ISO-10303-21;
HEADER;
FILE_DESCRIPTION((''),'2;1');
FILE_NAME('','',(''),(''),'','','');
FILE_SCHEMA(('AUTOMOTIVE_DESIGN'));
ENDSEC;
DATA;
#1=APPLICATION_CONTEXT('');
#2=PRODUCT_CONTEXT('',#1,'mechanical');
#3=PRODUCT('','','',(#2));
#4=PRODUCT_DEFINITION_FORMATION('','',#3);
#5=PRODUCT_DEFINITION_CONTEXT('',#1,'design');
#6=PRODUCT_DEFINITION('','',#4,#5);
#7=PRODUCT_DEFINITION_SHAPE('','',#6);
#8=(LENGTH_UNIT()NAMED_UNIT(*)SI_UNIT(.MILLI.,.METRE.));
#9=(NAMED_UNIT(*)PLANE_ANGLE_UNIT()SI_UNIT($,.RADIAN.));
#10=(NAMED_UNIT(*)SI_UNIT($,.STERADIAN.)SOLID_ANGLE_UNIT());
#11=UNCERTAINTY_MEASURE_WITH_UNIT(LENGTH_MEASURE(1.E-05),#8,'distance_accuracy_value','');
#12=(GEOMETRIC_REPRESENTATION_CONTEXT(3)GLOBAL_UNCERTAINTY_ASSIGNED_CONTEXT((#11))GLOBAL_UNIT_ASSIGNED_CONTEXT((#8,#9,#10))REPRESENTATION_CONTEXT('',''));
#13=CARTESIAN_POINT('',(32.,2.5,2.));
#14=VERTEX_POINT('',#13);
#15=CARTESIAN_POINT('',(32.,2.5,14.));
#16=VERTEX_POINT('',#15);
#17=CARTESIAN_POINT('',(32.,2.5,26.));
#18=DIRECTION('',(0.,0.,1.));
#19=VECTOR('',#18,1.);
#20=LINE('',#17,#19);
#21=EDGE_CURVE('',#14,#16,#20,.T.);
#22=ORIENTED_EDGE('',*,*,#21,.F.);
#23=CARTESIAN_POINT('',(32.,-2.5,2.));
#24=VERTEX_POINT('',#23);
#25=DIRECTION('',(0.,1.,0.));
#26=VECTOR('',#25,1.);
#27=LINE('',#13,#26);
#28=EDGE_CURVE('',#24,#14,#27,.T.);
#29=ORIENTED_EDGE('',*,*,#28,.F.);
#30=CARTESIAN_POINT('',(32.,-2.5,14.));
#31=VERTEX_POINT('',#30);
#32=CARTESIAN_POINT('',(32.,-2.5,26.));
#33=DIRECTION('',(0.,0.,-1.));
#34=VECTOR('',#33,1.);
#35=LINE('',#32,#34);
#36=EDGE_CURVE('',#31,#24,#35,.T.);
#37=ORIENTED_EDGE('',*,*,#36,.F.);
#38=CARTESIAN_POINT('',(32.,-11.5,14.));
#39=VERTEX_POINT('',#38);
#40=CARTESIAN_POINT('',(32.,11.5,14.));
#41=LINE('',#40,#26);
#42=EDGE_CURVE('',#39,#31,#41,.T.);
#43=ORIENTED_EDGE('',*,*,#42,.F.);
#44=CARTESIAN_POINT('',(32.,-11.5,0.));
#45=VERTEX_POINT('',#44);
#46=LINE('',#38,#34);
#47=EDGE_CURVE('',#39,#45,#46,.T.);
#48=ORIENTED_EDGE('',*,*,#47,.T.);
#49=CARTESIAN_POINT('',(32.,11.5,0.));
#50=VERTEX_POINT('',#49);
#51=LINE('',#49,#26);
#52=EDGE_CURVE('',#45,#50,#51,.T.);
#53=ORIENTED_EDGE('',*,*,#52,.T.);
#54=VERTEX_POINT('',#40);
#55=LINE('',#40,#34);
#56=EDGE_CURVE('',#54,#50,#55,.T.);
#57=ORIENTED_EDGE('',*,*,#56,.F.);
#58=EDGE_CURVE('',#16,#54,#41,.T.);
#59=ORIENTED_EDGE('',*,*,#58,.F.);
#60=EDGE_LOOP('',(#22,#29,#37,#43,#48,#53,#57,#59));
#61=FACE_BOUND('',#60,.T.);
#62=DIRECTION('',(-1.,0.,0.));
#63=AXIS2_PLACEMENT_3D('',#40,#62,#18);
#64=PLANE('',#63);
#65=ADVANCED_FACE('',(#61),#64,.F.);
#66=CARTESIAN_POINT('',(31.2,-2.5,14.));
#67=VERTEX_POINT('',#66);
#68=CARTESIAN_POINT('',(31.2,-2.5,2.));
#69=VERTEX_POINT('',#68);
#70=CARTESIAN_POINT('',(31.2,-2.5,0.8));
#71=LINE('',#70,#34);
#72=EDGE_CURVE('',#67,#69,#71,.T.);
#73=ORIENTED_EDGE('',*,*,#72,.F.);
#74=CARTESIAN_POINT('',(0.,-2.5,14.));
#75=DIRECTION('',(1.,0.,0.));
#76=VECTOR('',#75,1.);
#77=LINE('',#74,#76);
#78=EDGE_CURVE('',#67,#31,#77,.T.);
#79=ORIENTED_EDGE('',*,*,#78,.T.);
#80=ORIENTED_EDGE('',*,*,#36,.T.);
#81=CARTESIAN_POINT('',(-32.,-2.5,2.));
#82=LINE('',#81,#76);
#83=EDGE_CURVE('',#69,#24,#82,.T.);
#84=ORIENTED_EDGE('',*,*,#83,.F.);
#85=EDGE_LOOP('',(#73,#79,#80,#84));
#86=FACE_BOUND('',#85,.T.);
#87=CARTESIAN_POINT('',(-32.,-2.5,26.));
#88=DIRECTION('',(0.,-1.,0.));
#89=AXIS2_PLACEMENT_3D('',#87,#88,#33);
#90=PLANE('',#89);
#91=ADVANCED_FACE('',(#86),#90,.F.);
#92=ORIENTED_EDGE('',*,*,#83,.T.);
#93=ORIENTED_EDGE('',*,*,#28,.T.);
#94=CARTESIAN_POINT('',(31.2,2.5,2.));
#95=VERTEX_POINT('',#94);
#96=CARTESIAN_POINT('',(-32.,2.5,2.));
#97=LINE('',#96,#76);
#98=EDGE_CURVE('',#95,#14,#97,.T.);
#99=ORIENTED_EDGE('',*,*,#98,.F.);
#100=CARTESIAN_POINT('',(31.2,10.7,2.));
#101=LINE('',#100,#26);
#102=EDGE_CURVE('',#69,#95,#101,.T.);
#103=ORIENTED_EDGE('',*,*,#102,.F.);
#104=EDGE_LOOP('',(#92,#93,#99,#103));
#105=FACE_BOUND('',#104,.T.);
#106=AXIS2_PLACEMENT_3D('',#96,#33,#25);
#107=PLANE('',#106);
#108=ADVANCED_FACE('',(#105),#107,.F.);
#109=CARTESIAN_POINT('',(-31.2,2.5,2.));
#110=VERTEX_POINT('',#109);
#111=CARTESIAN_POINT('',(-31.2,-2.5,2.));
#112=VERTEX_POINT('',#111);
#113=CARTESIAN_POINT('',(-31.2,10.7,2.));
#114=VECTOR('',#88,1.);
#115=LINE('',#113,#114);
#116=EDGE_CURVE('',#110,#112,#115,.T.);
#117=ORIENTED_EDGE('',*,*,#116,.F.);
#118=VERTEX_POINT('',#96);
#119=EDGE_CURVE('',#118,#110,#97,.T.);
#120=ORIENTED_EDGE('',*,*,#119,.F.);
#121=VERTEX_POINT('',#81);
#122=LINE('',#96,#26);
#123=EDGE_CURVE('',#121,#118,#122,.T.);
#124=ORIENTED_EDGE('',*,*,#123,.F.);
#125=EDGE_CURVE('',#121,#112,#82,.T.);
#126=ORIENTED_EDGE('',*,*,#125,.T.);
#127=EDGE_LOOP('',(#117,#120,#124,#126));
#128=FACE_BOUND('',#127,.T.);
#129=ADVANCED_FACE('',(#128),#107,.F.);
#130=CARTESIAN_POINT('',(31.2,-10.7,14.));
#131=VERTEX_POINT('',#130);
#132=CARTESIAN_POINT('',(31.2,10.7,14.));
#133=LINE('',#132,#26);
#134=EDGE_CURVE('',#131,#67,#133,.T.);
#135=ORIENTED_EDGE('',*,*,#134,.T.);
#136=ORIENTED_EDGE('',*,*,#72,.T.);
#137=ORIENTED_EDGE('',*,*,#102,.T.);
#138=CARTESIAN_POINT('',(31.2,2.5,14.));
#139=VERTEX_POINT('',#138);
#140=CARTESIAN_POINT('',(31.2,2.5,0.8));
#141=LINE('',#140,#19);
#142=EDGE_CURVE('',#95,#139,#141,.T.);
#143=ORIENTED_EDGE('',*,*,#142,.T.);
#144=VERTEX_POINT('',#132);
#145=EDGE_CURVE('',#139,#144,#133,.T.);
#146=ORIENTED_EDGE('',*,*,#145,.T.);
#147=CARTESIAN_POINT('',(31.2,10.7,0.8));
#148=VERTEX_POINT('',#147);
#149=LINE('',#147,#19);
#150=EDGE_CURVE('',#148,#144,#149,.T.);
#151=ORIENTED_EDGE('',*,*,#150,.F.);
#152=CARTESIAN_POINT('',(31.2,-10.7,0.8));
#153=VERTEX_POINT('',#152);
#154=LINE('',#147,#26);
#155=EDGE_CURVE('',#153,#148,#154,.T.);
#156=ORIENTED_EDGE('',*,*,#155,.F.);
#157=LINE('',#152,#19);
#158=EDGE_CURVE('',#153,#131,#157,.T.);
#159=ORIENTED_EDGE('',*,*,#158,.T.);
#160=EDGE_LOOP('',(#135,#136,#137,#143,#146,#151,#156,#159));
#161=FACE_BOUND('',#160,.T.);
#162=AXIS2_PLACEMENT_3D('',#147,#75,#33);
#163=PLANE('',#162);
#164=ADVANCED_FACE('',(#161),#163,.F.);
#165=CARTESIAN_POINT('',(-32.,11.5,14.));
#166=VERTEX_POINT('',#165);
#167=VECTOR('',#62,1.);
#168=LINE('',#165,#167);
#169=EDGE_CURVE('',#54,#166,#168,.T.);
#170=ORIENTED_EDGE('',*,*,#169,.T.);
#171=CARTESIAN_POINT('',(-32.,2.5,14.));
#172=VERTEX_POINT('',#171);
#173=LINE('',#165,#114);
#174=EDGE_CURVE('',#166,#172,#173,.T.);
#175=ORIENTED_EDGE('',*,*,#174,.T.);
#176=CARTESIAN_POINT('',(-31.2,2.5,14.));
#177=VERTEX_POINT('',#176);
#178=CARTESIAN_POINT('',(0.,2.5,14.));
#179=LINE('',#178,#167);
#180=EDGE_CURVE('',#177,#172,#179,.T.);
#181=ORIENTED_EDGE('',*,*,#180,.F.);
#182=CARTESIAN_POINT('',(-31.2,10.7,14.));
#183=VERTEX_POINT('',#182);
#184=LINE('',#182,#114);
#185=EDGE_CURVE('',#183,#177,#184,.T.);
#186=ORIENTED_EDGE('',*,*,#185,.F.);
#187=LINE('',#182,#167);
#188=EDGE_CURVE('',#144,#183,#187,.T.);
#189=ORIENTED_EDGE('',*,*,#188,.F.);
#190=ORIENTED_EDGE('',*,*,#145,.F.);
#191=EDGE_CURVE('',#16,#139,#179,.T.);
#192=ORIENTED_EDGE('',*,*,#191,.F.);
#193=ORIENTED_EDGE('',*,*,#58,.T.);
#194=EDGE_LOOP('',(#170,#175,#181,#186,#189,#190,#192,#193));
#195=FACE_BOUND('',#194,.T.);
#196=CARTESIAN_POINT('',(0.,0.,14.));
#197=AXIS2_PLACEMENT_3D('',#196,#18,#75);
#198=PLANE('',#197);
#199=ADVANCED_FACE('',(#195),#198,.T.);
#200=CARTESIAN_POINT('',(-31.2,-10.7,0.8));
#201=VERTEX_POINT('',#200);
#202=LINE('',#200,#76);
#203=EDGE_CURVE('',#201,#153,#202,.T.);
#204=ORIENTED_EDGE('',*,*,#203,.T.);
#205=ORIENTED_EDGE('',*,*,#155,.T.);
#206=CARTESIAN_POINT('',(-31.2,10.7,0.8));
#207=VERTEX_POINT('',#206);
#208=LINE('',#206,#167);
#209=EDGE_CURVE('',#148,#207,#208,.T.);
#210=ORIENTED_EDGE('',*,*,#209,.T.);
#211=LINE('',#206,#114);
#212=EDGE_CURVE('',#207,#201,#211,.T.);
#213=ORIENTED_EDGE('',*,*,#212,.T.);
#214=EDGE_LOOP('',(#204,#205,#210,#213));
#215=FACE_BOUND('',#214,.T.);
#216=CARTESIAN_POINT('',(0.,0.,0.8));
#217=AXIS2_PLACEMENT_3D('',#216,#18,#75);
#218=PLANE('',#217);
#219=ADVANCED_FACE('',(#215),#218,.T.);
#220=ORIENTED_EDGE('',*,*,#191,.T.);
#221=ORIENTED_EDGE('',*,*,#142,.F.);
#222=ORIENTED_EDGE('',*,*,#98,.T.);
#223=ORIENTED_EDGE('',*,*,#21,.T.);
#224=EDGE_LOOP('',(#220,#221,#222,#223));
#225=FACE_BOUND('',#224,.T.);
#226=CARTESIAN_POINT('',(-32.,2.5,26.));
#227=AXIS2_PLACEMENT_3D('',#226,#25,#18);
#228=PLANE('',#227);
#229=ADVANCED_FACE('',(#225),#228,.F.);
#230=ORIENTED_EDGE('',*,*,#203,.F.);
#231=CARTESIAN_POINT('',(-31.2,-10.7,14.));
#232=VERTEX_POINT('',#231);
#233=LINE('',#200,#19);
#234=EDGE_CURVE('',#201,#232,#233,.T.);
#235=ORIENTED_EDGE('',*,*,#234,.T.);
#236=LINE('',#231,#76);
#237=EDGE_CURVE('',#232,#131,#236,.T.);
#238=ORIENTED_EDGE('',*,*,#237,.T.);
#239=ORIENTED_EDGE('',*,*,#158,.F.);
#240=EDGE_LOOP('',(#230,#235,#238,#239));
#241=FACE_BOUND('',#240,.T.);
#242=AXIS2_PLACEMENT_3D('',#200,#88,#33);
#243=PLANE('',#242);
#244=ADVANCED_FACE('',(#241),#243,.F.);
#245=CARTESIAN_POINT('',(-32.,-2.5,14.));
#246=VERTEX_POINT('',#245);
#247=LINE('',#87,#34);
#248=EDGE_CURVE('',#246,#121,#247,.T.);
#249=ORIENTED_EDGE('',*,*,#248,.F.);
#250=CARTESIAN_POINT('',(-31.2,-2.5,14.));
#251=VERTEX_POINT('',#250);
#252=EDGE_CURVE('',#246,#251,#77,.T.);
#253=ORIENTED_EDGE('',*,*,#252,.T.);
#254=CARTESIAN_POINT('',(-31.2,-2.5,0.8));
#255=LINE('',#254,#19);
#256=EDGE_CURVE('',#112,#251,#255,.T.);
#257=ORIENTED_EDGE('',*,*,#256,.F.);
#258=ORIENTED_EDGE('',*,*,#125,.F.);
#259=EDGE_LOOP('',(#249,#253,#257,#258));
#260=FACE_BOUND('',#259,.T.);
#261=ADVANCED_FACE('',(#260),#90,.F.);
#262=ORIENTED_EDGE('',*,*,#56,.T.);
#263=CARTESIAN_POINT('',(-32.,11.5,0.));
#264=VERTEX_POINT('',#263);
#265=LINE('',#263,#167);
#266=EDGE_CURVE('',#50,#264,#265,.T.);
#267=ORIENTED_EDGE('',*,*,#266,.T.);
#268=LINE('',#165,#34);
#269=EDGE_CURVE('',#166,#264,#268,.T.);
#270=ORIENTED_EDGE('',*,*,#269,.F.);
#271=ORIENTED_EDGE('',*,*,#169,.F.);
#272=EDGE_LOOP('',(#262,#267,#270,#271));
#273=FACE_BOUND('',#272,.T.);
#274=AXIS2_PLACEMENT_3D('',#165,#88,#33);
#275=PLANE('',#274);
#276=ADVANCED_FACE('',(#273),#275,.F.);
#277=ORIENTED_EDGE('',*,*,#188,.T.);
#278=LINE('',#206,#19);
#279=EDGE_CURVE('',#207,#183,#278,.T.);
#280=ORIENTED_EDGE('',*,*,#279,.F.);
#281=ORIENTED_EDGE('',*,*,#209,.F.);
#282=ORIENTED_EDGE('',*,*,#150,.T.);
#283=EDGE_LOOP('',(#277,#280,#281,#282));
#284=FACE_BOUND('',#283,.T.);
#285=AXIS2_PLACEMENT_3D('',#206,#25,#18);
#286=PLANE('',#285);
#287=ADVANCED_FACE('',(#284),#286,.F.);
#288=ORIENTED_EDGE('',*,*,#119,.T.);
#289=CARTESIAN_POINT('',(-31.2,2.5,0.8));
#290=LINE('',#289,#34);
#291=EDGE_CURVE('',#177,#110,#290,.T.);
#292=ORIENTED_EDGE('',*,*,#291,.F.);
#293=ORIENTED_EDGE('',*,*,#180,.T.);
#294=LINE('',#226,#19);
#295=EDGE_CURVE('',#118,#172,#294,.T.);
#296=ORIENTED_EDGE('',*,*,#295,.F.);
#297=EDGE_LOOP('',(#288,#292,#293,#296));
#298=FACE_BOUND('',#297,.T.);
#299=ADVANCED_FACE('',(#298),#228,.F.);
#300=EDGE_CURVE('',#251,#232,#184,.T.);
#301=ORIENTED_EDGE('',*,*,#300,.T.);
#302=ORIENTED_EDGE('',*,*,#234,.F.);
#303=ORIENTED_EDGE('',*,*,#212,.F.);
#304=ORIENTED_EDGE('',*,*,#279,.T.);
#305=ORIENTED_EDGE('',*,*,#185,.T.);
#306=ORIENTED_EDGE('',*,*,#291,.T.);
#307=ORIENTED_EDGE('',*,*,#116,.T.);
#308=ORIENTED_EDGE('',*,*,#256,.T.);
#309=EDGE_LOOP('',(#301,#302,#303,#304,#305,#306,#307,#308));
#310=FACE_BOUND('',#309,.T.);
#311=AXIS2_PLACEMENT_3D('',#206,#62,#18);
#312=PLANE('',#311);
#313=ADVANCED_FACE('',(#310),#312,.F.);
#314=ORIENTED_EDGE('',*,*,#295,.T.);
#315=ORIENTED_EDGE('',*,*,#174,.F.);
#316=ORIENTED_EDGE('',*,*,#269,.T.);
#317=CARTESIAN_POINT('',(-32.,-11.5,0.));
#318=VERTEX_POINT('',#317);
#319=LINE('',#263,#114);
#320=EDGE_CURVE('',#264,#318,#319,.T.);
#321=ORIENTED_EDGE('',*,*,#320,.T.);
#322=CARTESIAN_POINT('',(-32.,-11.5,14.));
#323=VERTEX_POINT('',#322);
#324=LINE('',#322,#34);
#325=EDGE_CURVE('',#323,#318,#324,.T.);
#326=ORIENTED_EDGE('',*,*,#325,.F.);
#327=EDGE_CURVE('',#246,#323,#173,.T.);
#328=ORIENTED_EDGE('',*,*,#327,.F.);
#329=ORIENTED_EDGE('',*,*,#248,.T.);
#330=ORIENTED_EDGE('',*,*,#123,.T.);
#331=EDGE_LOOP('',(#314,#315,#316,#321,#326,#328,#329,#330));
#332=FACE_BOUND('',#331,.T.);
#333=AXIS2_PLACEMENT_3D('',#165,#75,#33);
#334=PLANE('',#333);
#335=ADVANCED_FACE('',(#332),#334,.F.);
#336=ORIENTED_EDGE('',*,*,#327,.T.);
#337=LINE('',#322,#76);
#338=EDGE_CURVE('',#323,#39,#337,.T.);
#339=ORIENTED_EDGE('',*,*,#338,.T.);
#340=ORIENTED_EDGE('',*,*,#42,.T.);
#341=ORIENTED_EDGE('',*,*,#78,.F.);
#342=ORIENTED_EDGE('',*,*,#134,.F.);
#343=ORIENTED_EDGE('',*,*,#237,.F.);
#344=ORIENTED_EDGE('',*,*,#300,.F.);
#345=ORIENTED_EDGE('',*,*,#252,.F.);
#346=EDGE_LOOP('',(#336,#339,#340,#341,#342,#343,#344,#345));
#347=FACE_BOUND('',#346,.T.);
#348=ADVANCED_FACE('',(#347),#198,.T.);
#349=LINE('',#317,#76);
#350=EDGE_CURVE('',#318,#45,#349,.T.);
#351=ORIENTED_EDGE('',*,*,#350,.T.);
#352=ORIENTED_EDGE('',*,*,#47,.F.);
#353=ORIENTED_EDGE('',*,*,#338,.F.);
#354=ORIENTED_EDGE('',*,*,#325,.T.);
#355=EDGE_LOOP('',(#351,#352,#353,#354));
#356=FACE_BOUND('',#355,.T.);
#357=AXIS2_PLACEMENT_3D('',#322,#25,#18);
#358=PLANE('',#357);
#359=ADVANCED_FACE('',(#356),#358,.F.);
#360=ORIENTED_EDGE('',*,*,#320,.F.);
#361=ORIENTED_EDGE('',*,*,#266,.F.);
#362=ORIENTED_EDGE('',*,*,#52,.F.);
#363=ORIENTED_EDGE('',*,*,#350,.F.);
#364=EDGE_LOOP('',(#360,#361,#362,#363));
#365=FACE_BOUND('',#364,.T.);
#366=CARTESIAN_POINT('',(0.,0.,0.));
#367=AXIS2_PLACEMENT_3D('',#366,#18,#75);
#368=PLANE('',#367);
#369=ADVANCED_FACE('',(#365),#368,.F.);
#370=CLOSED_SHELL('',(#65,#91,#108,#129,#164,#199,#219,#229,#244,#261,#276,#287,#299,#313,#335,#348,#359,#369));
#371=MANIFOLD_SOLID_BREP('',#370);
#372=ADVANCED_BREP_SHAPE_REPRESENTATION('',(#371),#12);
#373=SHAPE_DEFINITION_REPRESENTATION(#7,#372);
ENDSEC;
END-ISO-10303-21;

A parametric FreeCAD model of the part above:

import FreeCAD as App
import Part
import Sketcher
from FreeCAD import Vector
Q = App.Units.Quantity


def add_polygon(sketch, points):
    """Adds a closed chain of lines whose ends are joined by coincident constraints."""
    first, n = sketch.GeometryCount, len(points)
    for a, b in zip(points, points[1:] + points[:1]):
        sketch.addGeometry(Part.LineSegment(App.Vector(*a, 0), App.Vector(*b, 0)), False)
    for i in range(n):
        sketch.addConstraint(Sketcher.Constraint("Coincident", first + i, 2, first + (i + 1) % n, 1))

doc = App.newDocument("Part")
body = doc.addObject("PartDesign::Body", "Body")

# Sketch on XY plane
sketch1 = body.newObject("Sketcher::SketchObject", "Sketch")
sketch1.AttachmentSupport = (doc.getObject("XY_Plane"), [""])
sketch1.MapMode = "FlatFace"
add_polygon(sketch1, [(-32, 11.5), (-32, -11.5), (32, -11.5), (32, 11.5)])  # lines 0-3
sketch1.addConstraint(Sketcher.Constraint("Vertical", 0))
sketch1.addConstraint(Sketcher.Constraint("Horizontal", 1))
sketch1.addConstraint(Sketcher.Constraint("Vertical", 2))
sketch1.addConstraint(Sketcher.Constraint("Horizontal", 3))
sketch1.addConstraint(Sketcher.Constraint("Symmetric", 0, 2, 2, 2, -1, 1))
sketch1.addConstraint(Sketcher.Constraint("DistanceX", 1, 1, 1, 2, Q("64 mm")))
sketch1.addConstraint(Sketcher.Constraint("DistanceY", 0, 2, 0, 1, Q("23 mm")))
pad1 = body.newObject("PartDesign::Pad", "Pad")
pad1.Profile = sketch1
pad1.Length = 14

# Sketch on XY plane
sketch2 = body.newObject("Sketcher::SketchObject", "Sketch001")
sketch2.AttachmentSupport = (doc.getObject("XY_Plane"), [""])
sketch2.MapMode = "FlatFace"
sketch2.AttachmentOffset = App.Placement(Vector(0, 0, 14), App.Rotation())
add_polygon(sketch2, [(-31.2, 10.7), (-31.2, -10.7), (31.2, -10.7), (31.2, 10.7)])  # lines 0-3
sketch2.addConstraint(Sketcher.Constraint("Vertical", 0))
sketch2.addConstraint(Sketcher.Constraint("Horizontal", 1))
sketch2.addConstraint(Sketcher.Constraint("Vertical", 2))
sketch2.addConstraint(Sketcher.Constraint("Horizontal", 3))
sketch2.addConstraint(Sketcher.Constraint("Symmetric", 0, 2, 2, 2, -1, 1))
sketch2.addConstraint(Sketcher.Constraint("DistanceX", 1, 1, 1, 2, Q("62.4 mm")))
sketch2.addConstraint(Sketcher.Constraint("DistanceY", 0, 2, 0, 1, Q("21.4 mm")))
pocket1 = body.newObject("PartDesign::Pocket", "Pocket")
pocket1.Profile = sketch2
pocket1.Length = 13.2

# Sketch on YZ plane
sketch3 = body.newObject("Sketcher::SketchObject", "Sketch002")
sketch3.AttachmentSupport = (doc.getObject("YZ_Plane"), [""])
sketch3.MapMode = "FlatFace"
sketch3.AttachmentOffset = App.Placement(Vector(0, 0, 32), App.Rotation())
add_polygon(sketch3, [(2.5, 26), (-2.5, 26), (-2.5, 2), (2.5, 2)])  # lines 0-3
sketch3.addConstraint(Sketcher.Constraint("Horizontal", 0))
sketch3.addConstraint(Sketcher.Constraint("Vertical", 1))
sketch3.addConstraint(Sketcher.Constraint("Horizontal", 2))
sketch3.addConstraint(Sketcher.Constraint("Vertical", 3))
sketch3.addConstraint(Sketcher.Constraint("DistanceX", 0, 2, 0, 1, Q("5 mm")))
sketch3.addConstraint(Sketcher.Constraint("DistanceY", 1, 2, 1, 1, Q("24 mm")))
sketch3.addConstraint(Sketcher.Constraint("DistanceY", -1, 1, 0, 2, Q("26 mm")))
sketch3.addConstraint(Sketcher.Constraint("DistanceX", 0, 2, -1, 1, Q("2.5 mm")))
pocket2 = body.newObject("PartDesign::Pocket", "Pocket001")
pocket2.Profile = sketch3
pocket2.Type = "ThroughAll"

doc.recompute()
